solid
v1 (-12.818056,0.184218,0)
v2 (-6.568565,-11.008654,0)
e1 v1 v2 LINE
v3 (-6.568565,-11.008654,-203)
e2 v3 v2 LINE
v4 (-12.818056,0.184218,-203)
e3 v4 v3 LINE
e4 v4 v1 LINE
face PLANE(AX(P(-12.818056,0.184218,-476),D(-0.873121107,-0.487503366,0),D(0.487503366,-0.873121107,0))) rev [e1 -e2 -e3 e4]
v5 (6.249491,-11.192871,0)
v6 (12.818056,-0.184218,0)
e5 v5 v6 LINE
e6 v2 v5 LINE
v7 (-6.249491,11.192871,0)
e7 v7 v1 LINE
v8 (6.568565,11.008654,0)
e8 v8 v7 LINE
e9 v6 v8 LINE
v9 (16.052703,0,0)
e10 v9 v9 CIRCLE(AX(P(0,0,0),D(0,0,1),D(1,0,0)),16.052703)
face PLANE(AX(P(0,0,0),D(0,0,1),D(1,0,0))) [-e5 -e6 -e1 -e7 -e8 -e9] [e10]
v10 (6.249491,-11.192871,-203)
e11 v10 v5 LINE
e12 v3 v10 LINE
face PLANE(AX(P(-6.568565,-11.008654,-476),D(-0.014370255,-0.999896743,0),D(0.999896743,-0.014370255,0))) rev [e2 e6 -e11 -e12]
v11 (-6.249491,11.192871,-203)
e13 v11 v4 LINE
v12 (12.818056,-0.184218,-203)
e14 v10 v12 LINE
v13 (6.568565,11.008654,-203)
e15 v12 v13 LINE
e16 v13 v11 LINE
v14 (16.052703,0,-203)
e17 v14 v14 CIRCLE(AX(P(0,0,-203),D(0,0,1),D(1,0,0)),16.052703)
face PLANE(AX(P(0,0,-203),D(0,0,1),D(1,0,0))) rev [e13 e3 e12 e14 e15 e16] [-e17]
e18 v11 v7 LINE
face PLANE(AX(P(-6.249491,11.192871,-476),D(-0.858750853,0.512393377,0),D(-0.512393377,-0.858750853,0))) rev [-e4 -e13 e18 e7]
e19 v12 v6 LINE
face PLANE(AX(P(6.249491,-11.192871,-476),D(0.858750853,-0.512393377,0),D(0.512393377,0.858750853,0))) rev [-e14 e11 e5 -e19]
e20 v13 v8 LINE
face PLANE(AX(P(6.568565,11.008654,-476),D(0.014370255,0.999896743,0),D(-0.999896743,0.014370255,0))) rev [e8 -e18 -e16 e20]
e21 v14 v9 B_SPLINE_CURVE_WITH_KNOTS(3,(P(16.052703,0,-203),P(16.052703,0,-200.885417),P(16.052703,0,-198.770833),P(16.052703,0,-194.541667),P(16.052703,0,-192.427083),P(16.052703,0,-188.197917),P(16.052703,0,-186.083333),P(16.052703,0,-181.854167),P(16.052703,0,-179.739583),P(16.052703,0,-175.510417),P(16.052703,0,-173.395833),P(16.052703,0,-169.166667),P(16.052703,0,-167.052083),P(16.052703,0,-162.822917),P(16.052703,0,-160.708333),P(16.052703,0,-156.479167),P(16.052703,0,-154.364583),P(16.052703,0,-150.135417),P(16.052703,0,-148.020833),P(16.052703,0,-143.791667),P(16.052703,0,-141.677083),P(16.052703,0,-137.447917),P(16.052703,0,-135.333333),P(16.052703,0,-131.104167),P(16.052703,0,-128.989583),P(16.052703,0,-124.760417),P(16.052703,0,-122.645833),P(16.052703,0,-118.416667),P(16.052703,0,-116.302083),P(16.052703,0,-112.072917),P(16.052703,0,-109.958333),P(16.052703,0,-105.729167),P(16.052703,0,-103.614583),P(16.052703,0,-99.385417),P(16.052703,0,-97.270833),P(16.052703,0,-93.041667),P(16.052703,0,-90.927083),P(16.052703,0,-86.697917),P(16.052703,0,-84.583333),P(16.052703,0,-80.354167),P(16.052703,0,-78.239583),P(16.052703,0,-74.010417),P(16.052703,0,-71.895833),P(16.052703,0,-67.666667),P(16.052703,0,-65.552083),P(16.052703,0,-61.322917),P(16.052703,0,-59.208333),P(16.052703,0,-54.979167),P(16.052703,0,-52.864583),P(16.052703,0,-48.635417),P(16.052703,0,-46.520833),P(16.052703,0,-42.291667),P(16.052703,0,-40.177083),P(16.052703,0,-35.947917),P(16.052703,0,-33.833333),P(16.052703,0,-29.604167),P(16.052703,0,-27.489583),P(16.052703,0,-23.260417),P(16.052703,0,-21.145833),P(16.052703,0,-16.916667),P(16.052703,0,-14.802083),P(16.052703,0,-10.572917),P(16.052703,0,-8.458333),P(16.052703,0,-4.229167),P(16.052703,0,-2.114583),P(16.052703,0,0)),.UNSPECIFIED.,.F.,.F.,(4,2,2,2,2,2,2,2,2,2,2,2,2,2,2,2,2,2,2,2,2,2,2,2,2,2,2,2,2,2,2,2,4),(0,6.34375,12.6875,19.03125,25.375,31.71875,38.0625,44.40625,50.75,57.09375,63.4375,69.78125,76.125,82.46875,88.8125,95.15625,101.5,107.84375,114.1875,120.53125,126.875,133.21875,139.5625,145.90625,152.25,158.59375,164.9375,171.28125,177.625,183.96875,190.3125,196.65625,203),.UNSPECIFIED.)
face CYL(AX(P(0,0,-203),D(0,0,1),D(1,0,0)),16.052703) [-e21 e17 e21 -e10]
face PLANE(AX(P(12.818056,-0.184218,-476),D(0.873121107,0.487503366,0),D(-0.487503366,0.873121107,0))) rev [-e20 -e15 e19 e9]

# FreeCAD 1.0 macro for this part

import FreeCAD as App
import Part
import Sketcher

V = App.Vector
Q = App.Units.Quantity

doc = App.newDocument("Part")
params = doc.addObject("Spreadsheet::Sheet", "Params")
for row, (alias, value) in enumerate([
    ("pad1_length", "203 mm"),
    ("pocket1_length", "476 mm"),
], start=1):
    params.set(f"A{row}", alias)
    params.set(f"B{row}", "=" + value)
    params.setAlias(f"B{row}", alias)

body = doc.addObject("PartDesign::Body", "Body")

sketch1 = body.newObject("Sketcher::SketchObject", "Sketch")
sketch1.AttachmentSupport = (doc.getObject("XY_Plane"), [""])
sketch1.MapMode = "FlatFace"
sketch1.addGeometry(Part.Circle(V(0, 0, 0), V(0, 0, 1), 16), False)
sketch1.addConstraint([
    Sketcher.Constraint("Coincident", 0, 3, -1, 1),
    Sketcher.Constraint("Diameter", 0, Q("32.105405 mm")),
])
pad1 = body.newObject("PartDesign::Pad", "Pad")
pad1.Profile = sketch1
pad1.setExpression("Length", "Params.pad1_length")
pad1.Reversed = True

sketch2 = body.newObject("Sketcher::SketchObject", "Sketch001")
sketch2.AttachmentSupport = (doc.getObject("XY_Plane"), [""])
sketch2.MapMode = "FlatFace"
sketch2.addGeometry([
    Part.LineSegment(V(6, -11, 0), V(13, 0, 0)),
    Part.LineSegment(V(13, 0, 0), V(7, 11, 0)),
    Part.LineSegment(V(7, 11, 0), V(-6, 11, 0)),
    Part.LineSegment(V(-6, 11, 0), V(-13, 0, 0)),
    Part.LineSegment(V(-13, 0, 0), V(-7, -11, 0)),
    Part.LineSegment(V(-7, -11, 0), V(6, -11, 0)),
], False)
sketch2.addConstraint([
    Sketcher.Constraint("Coincident", 0, 2, 1, 1),
    Sketcher.Constraint("Coincident", 1, 2, 2, 1),
    Sketcher.Constraint("Coincident", 2, 2, 3, 1),
    Sketcher.Constraint("Coincident", 3, 2, 4, 1),
    Sketcher.Constraint("Coincident", 4, 2, 5, 1),
    Sketcher.Constraint("Coincident", 5, 2, 0, 1),
    Sketcher.Constraint("Symmetric", 0, 2, 3, 2, -1, 1),
    Sketcher.Constraint("Symmetric", 1, 2, 4, 2, -1, 1),
    Sketcher.Constraint("Symmetric", 2, 2, 5, 2, -1, 1),
    Sketcher.Constraint("Equal", 0, 1),
    Sketcher.Constraint("Equal", 1, 2),
    Sketcher.Constraint("Distance", 0, Q("12.81938 mm")),
    Sketcher.Constraint("DistanceX", 2, 2, -1, 1, Q("6.249491 mm")),
    Sketcher.Constraint("DistanceY", -1, 1, 2, 2, Q("11.192871 mm")),
    Sketcher.Constraint("DistanceX", 1, 2, 0, 2, Q("6.249491 mm")),
])
pocket1 = body.newObject("PartDesign::Pocket", "Pocket")
pocket1.Profile = sketch2
pocket1.setExpression("Length", "Params.pocket1_length")

doc.recompute()
